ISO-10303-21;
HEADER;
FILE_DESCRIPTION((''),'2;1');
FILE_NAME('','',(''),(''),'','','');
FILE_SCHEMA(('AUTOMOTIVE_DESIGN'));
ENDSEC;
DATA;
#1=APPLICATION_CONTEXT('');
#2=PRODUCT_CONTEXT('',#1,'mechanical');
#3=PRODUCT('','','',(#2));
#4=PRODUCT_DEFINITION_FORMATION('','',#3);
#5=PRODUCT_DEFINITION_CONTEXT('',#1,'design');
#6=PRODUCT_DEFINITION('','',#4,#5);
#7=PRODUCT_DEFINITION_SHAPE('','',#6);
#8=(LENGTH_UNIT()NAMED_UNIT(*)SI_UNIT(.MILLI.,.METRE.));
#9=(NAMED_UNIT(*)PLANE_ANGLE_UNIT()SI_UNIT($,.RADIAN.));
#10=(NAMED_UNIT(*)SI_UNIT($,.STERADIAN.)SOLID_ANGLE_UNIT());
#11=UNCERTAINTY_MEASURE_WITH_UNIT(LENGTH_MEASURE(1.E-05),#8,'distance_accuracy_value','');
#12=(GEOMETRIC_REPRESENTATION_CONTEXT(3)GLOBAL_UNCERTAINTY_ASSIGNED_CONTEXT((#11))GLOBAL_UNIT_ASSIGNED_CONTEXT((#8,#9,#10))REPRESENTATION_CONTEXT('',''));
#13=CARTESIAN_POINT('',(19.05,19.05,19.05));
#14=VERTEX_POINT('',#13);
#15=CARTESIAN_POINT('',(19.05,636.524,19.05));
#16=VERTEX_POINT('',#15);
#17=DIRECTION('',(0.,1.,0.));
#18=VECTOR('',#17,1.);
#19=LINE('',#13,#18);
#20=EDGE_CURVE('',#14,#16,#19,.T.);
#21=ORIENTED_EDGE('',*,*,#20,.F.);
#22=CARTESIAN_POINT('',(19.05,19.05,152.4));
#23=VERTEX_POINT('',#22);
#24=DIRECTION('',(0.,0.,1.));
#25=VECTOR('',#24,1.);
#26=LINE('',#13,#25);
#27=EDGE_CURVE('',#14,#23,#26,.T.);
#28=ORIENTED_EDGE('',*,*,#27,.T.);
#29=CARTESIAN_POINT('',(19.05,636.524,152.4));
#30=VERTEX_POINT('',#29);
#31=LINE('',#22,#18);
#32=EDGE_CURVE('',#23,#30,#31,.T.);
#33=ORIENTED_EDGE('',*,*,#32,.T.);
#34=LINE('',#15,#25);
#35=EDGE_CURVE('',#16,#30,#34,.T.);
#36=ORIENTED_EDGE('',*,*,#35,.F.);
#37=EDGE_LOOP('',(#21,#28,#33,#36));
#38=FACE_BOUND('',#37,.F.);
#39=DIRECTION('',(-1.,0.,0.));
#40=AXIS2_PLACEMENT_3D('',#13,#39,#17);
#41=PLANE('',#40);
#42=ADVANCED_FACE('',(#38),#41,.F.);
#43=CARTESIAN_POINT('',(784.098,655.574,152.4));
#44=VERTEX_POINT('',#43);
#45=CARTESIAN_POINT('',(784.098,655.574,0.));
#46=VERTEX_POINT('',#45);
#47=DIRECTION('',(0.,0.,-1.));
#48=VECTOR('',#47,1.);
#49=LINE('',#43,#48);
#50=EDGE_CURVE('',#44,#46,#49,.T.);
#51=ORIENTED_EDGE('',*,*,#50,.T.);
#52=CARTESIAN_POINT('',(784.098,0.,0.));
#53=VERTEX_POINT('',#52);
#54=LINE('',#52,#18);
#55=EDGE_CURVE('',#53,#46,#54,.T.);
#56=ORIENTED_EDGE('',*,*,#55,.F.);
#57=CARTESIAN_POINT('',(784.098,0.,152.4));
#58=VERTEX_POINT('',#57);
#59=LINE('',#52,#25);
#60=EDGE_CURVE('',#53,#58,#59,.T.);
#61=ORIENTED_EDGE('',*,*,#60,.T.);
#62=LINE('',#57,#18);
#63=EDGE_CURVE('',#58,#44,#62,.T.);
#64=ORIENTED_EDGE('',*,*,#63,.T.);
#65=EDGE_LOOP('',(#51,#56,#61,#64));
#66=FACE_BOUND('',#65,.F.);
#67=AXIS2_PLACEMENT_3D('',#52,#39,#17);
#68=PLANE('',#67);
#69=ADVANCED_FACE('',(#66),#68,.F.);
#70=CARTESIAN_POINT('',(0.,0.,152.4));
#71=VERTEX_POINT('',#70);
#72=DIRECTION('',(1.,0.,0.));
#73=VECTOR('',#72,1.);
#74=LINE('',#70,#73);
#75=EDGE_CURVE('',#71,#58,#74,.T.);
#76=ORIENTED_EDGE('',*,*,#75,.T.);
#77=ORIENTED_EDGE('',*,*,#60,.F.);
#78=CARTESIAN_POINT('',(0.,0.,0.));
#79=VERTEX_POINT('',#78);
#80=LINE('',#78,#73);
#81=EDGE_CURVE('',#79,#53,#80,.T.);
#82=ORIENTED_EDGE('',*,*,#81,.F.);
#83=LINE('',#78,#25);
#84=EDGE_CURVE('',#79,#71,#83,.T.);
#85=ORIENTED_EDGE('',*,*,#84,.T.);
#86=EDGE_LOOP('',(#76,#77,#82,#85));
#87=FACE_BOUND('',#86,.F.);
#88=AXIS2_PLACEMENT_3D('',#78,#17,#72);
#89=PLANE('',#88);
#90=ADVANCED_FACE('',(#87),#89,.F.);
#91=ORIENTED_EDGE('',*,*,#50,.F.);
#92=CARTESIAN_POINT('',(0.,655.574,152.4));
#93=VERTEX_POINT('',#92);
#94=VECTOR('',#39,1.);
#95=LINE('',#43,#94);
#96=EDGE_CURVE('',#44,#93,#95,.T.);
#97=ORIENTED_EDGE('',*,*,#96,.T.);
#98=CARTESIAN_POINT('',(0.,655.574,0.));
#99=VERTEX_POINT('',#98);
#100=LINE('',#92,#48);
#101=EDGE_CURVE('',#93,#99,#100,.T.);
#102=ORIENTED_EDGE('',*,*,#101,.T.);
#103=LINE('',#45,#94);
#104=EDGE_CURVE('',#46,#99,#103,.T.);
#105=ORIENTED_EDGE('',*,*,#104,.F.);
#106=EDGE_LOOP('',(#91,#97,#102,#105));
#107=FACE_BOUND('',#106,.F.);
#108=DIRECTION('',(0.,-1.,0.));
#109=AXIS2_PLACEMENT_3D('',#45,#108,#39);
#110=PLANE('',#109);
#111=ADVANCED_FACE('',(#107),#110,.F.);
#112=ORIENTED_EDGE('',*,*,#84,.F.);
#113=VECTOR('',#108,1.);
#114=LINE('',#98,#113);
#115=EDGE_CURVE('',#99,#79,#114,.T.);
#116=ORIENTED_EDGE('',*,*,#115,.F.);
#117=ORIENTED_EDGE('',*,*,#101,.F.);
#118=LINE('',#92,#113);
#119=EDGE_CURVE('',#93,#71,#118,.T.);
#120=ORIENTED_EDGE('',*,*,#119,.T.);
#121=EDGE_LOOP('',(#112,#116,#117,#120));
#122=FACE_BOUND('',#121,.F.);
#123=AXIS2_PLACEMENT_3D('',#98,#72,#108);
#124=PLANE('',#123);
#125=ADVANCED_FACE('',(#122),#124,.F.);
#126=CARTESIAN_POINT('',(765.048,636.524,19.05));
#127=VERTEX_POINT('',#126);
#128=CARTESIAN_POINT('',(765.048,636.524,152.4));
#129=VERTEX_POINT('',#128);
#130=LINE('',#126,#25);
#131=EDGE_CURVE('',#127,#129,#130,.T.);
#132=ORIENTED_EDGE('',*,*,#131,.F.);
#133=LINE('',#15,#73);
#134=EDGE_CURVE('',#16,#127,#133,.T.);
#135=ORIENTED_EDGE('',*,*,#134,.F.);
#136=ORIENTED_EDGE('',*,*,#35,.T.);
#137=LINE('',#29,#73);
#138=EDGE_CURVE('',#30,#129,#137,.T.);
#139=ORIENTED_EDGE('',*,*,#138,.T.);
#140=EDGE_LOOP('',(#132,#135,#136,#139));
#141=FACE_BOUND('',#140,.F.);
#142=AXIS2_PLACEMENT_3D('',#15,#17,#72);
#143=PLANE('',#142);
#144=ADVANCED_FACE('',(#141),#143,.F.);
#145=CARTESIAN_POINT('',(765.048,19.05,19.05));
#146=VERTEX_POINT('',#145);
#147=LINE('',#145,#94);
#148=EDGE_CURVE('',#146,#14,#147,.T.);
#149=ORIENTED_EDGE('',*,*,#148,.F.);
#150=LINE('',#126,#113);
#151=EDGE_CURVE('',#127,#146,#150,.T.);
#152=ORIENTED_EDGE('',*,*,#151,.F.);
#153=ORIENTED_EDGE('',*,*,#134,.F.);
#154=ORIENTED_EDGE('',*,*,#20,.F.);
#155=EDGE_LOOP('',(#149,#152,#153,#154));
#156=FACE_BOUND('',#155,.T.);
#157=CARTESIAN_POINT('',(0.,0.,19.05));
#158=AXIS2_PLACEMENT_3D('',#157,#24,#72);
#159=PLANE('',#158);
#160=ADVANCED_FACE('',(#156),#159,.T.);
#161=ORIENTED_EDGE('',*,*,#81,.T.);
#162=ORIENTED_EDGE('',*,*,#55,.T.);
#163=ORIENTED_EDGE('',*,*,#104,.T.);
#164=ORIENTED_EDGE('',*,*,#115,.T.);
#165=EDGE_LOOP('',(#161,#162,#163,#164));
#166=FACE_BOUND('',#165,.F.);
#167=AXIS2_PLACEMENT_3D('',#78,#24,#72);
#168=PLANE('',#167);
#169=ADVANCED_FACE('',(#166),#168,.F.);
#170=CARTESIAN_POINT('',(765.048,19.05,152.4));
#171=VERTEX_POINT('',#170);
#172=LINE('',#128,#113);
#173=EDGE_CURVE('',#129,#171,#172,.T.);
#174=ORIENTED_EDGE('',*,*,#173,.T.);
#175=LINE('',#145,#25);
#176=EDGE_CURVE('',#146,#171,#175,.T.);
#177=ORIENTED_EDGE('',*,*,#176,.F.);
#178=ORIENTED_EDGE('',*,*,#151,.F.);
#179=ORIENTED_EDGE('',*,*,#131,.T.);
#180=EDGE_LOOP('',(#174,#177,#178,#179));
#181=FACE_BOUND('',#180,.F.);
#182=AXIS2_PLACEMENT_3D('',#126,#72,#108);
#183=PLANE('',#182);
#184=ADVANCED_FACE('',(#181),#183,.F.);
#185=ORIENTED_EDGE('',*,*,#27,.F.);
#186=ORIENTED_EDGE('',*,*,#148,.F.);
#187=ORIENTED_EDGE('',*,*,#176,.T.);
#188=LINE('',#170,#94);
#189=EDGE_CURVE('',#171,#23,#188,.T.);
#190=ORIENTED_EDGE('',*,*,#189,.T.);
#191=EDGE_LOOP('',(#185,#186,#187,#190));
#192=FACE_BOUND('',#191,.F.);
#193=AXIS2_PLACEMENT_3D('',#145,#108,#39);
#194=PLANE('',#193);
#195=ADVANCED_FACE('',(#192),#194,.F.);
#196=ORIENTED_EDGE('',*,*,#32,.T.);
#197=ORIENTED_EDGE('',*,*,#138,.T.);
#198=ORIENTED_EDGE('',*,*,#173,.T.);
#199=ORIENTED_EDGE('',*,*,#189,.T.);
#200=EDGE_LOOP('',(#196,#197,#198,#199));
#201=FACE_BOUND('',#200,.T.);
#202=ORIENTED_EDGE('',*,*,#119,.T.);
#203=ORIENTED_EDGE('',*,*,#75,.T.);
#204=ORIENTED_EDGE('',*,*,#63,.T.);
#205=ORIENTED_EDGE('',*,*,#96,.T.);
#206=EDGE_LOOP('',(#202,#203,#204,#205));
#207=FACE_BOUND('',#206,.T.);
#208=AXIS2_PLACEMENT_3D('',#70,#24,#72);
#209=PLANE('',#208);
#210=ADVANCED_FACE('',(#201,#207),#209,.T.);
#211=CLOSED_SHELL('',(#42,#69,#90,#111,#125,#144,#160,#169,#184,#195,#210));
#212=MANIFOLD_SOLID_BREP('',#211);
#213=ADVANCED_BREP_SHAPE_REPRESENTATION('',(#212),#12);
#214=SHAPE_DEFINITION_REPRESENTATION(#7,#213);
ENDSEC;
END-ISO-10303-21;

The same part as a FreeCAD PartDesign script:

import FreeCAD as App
import Part
import Sketcher
Q = App.Units.Quantity


def add_polygon(sketch, points):
    """Adds a closed chain of lines whose ends are joined by coincident constraints."""
    first, n = sketch.GeometryCount, len(points)
    for a, b in zip(points, points[1:] + points[:1]):
        sketch.addGeometry(Part.LineSegment(App.Vector(*a, 0), App.Vector(*b, 0)), False)
    for i in range(n):
        sketch.addConstraint(Sketcher.Constraint("Coincident", first + i, 2, first + (i + 1) % n, 1))

doc = App.newDocument("Part")
body = doc.addObject("PartDesign::Body", "Body")

# Sketch on XY plane
sketch1 = doc.addObject("Sketcher::SketchObject", "Sketch")
body.addObject(sketch1)
sketch1.AttachmentSupport = (doc.XY_Plane, [""])
sketch1.MapMode = "FlatFace"
add_polygon(sketch1, [(0, 656), (0, 0), (784, 0), (784, 656)])  # lines 0-3
sketch1.addConstraint([
    Sketcher.Constraint("Vertical", 0),
    Sketcher.Constraint("Horizontal", 1),
    Sketcher.Constraint("Vertical", 2),
    Sketcher.Constraint("Horizontal", 3),
    Sketcher.Constraint("Coincident", 0, 2, -1, 1),
    Sketcher.Constraint("DistanceX", 1, 1, 1, 2, Q("30.87 in")),
    Sketcher.Constraint("DistanceY", 0, 2, 0, 1, Q("25.81 in")),
])
pad1 = doc.addObject("PartDesign::Pad", "Pad")
body.addObject(pad1)
pad1.Profile = sketch1
pad1.Length = Q("0.75 in")

# Sketch on XY plane
sketch2 = doc.addObject("Sketcher::SketchObject", "Sketch001")
body.addObject(sketch2)
sketch2.AttachmentSupport = (doc.XY_Plane, [""])
sketch2.MapMode = "FlatFace"
sketch2.AttachmentOffset = App.Placement(App.Vector(0, 0, 0.75 * 25.4), App.Rotation())
add_polygon(sketch2, [(0, 0), (784, 0), (784, 656), (0, 656)])  # lines 0-3
add_polygon(sketch2, [(19, 19), (19, 637), (765, 637), (765, 19)])  # lines 4-7
sketch2.addConstraint([
    Sketcher.Constraint("Horizontal", 0),
    Sketcher.Constraint("Vertical", 1),
    Sketcher.Constraint("Horizontal", 2),
    Sketcher.Constraint("Vertical", 3),
    Sketcher.Constraint("Vertical", 4),
    Sketcher.Constraint("Horizontal", 5),
    Sketcher.Constraint("Vertical", 6),
    Sketcher.Constraint("Horizontal", 7),
    Sketcher.Constraint("Coincident", 3, 2, -1, 1),
    Sketcher.Constraint("DistanceX", -1, 1, 4, 2, Q("0.75 in")),
    Sketcher.Constraint("DistanceY", -1, 1, 6, 2, Q("0.75 in")),
    Sketcher.Constraint("DistanceY", 4, 2, 2, 2, Q("0.75 in")),
    Sketcher.Constraint("DistanceX", 5, 2, 1, 2, Q("0.75 in")),
    Sketcher.Constraint("DistanceX", 0, 1, 0, 2, Q("30.87 in")),
    Sketcher.Constraint("DistanceY", 1, 1, 1, 2, Q("25.81 in")),
])
pad2 = doc.addObject("PartDesign::Pad", "Pad001")
body.addObject(pad2)
pad2.Profile = sketch2
pad2.Length = Q("5.25 in")

doc.recompute()
